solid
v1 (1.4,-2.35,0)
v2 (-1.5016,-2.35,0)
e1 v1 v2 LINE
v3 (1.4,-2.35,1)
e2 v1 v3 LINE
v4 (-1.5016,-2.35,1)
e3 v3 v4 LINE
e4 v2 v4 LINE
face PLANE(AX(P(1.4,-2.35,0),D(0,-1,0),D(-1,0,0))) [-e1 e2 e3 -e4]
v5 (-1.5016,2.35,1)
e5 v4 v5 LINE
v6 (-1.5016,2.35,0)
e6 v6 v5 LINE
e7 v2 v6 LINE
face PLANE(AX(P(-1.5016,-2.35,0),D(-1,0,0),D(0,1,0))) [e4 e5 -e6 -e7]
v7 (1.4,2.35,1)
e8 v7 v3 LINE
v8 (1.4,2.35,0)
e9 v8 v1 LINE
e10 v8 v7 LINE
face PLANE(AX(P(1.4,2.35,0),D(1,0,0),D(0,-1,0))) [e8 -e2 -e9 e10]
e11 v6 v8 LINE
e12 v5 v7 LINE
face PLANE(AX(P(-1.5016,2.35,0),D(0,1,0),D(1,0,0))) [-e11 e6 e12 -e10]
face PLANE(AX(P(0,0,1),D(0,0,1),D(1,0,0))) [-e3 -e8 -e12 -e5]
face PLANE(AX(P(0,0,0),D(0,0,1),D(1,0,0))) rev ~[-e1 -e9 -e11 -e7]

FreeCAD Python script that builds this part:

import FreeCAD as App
import Part
import Sketcher
Q = App.Units.Quantity

doc = App.newDocument("Part")
body = doc.addObject("PartDesign::Body", "Body")

# Sketch on XY plane
sketch1 = body.newObject("Sketcher::SketchObject", "Sketch")
sketch1.AttachmentSupport = (doc.getObject("XY_Plane"), [""])
sketch1.MapMode = "FlatFace"
sketch1.addGeometry([
    Part.LineSegment(App.Vector(1.4, 2.4, 0), App.Vector(-1.5, 2.4, 0)),
    Part.LineSegment(App.Vector(-1.5, 2.4, 0), App.Vector(-1.5, -2.4, 0)),
    Part.LineSegment(App.Vector(-1.5, -2.4, 0), App.Vector(1.4, -2.4, 0)),
    Part.LineSegment(App.Vector(1.4, -2.4, 0), App.Vector(1.4, 2.4, 0)),
], False)
sketch1.addConstraint([
    Sketcher.Constraint("Coincident", 0, 2, 1, 1),
    Sketcher.Constraint("Coincident", 1, 2, 2, 1),
    Sketcher.Constraint("Coincident", 2, 2, 3, 1),
    Sketcher.Constraint("Coincident", 3, 2, 0, 1),
    Sketcher.Constraint("Horizontal", 0),
    Sketcher.Constraint("Vertical", 1),
    Sketcher.Constraint("Horizontal", 2),
    Sketcher.Constraint("Vertical", 3),
    Sketcher.Constraint("DistanceY", 1, 2, 1, 1, Q("4.7 mm")),
    Sketcher.Constraint("DistanceX", -1, 1, 2, 2, Q("1.4 mm")),
    Sketcher.Constraint("DistanceY", -1, 1, 0, 2, Q("2.35 mm")),
    Sketcher.Constraint("DistanceX", 0, 2, 0, 1, Q("2.9016 mm")),
])
pad1 = body.newObject("PartDesign::Pad", "Pad")
pad1.Profile = sketch1
pad1.Length = 1

doc.recompute()
